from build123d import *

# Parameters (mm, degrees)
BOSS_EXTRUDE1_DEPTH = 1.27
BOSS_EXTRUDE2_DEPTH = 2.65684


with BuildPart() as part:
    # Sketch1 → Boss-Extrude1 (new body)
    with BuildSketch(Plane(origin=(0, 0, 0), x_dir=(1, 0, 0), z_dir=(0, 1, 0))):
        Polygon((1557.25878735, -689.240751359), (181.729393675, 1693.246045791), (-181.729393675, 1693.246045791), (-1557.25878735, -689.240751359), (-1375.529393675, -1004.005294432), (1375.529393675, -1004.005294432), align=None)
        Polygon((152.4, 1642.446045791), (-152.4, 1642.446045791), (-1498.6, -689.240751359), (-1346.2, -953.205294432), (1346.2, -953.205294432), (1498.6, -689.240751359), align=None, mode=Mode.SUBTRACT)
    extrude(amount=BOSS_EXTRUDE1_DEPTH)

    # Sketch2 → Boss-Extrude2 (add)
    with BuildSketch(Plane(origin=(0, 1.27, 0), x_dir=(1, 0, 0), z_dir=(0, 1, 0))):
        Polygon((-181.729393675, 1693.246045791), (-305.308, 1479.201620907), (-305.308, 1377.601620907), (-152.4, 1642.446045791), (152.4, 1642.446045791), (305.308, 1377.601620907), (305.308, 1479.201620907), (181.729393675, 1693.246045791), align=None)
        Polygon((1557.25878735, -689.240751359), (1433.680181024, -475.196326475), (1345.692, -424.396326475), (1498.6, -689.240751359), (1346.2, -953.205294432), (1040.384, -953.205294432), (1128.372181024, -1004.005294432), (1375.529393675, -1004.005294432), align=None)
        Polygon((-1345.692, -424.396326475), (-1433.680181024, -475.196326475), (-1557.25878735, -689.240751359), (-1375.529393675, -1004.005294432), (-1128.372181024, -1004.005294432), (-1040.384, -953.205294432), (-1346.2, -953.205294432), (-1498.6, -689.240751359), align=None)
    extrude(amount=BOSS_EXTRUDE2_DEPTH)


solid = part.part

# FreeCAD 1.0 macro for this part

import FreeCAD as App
import Part
import Sketcher
from FreeCAD import Vector
Q = App.Units.Quantity

doc = App.newDocument("Part")
body = doc.addObject("PartDesign::Body", "Body")

# Sketch on XZ plane
sketch1 = body.newObject("Sketcher::SketchObject", "Sketch")
sketch1.AttachmentSupport = (doc.getObject("XZ_Plane"), [""])
sketch1.MapMode = "FlatFace"
sketch1.addGeometry(Part.LineSegment(Vector(1557.258787, 689.240751, 0), Vector(181.729394, -1693.246046, 0)), False)
sketch1.addGeometry(Part.LineSegment(Vector(181.729394, -1693.246046, 0), Vector(-181.729394, -1693.246046, 0)), False)
sketch1.addGeometry(Part.LineSegment(Vector(-181.729394, -1693.246046, 0), Vector(-1557.258787, 689.240751, 0)), False)
sketch1.addGeometry(Part.LineSegment(Vector(-1557.258787, 689.240751, 0), Vector(-1375.529394, 1004.005294, 0)), False)
sketch1.addGeometry(Part.LineSegment(Vector(-1375.529394, 1004.005294, 0), Vector(1375.529394, 1004.005294, 0)), False)
sketch1.addGeometry(Part.LineSegment(Vector(1375.529394, 1004.005294, 0), Vector(1557.258787, 689.240751, 0)), False)
sketch1.addGeometry(Part.LineSegment(Vector(-152.4, -1642.446046, 0), Vector(152.4, -1642.446046, 0)), False)
sketch1.addGeometry(Part.LineSegment(Vector(152.4, -1642.446046, 0), Vector(1498.6, 689.240751, 0)), False)
sketch1.addGeometry(Part.LineSegment(Vector(1498.6, 689.240751, 0), Vector(1346.2, 953.205294, 0)), False)
sketch1.addGeometry(Part.LineSegment(Vector(1346.2, 953.205294, 0), Vector(-1346.2, 953.205294, 0)), False)
sketch1.addGeometry(Part.LineSegment(Vector(-1346.2, 953.205294, 0), Vector(-1498.6, 689.240751, 0)), False)
sketch1.addGeometry(Part.LineSegment(Vector(-1498.6, 689.240751, 0), Vector(-152.4, -1642.446046, 0)), False)
sketch1.addConstraint(Sketcher.Constraint("Coincident", 0, 2, 1, 1))
sketch1.addConstraint(Sketcher.Constraint("Coincident", 1, 2, 2, 1))
sketch1.addConstraint(Sketcher.Constraint("Coincident", 2, 2, 3, 1))
sketch1.addConstraint(Sketcher.Constraint("Coincident", 3, 2, 4, 1))
sketch1.addConstraint(Sketcher.Constraint("Coincident", 4, 2, 5, 1))
sketch1.addConstraint(Sketcher.Constraint("Coincident", 5, 2, 0, 1))
sketch1.addConstraint(Sketcher.Constraint("Coincident", 6, 2, 7, 1))
sketch1.addConstraint(Sketcher.Constraint("Coincident", 7, 2, 8, 1))
sketch1.addConstraint(Sketcher.Constraint("Coincident", 8, 2, 9, 1))
sketch1.addConstraint(Sketcher.Constraint("Coincident", 9, 2, 10, 1))
sketch1.addConstraint(Sketcher.Constraint("Coincident", 10, 2, 11, 1))
sketch1.addConstraint(Sketcher.Constraint("Coincident", 11, 2, 6, 1))
sketch1.addConstraint(Sketcher.Constraint("Horizontal", 1))
sketch1.addConstraint(Sketcher.Constraint("Horizontal", 4))
sketch1.addConstraint(Sketcher.Constraint("Horizontal", 6))
sketch1.addConstraint(Sketcher.Constraint("Horizontal", 9))
sketch1.addConstraint(Sketcher.Constraint("Symmetric", 2, 2, 5, 2, -2))
sketch1.addConstraint(Sketcher.Constraint("Symmetric", 7, 2, 10, 2, -2))
sketch1.addConstraint(Sketcher.Constraint("Parallel", 0, 3))
sketch1.addConstraint(Sketcher.Constraint("Parallel", 2, 5))
sketch1.addConstraint(Sketcher.Constraint("Parallel", 3, 7))
sketch1.addConstraint(Sketcher.Constraint("Parallel", 5, 8))
sketch1.addConstraint(Sketcher.Constraint("Parallel", 7, 10))
sketch1.addConstraint(Sketcher.Constraint("Parallel", 8, 11))
sketch1.addConstraint(Sketcher.Constraint("Horizontal", 5, 2, 7, 2))
sketch1.addConstraint(Sketcher.Constraint("Equal", 0, 2))
sketch1.addConstraint(Sketcher.Constraint("DistanceX", 6, 1, 6, 2, Q("12 in")))
sketch1.addConstraint(Sketcher.Constraint("DistanceX", 9, 2, 9, 1, Q("106 in")))
sketch1.addConstraint(Sketcher.Constraint("Distance", 7, Q("106 in")))
sketch1.addConstraint(Sketcher.Constraint("Distance", 8, Q("12 in")))
sketch1.addConstraint(Sketcher.Constraint("DistanceX", 3, 2, 1, 2, Q("47 in")))
sketch1.addConstraint(Sketcher.Constraint("DistanceY", 0, 2, 6, 2, Q("2 in")))
sketch1.addConstraint(Sketcher.Constraint("DistanceX", 1, 2, 1, 1, 363.458787))
sketch1.addConstraint(Sketcher.Constraint("DistanceY", -1, 1, 2, 2, 689.240751))
pad1 = body.newObject("PartDesign::Pad", "Pad")
pad1.Profile = sketch1
pad1.Length = Q("0.05 in")
pad1.Reversed = True

# Sketch on XZ plane
sketch2 = body.newObject("Sketcher::SketchObject", "Sketch001")
sketch2.AttachmentSupport = (doc.getObject("XZ_Plane"), [""])
sketch2.MapMode = "FlatFace"
sketch2.AttachmentOffset = App.Placement(Vector(0, 0, -0.05 * 25.4), App.Rotation())
sketch2.addGeometry(Part.LineSegment(Vector(-181.729394, -1693.246046, 0), Vector(-305.308, -1479.201621, 0)), False)
sketch2.addGeometry(Part.LineSegment(Vector(-305.308, -1479.201621, 0), Vector(-305.308, -1377.601621, 0)), False)
sketch2.addGeometry(Part.LineSegment(Vector(-305.308, -1377.601621, 0), Vector(-152.4, -1642.446046, 0)), False)
sketch2.addGeometry(Part.LineSegment(Vector(-152.4, -1642.446046, 0), Vector(152.4, -1642.446046, 0)), False)
sketch2.addGeometry(Part.LineSegment(Vector(152.4, -1642.446046, 0), Vector(305.308, -1377.601621, 0)), False)
sketch2.addGeometry(Part.LineSegment(Vector(305.308, -1377.601621, 0), Vector(305.308, -1479.201621, 0)), False)
sketch2.addGeometry(Part.LineSegment(Vector(305.308, -1479.201621, 0), Vector(181.729394, -1693.246046, 0)), False)
sketch2.addGeometry(Part.LineSegment(Vector(181.729394, -1693.246046, 0), Vector(-181.729394, -1693.246046, 0)), False)
sketch2.addGeometry(Part.LineSegment(Vector(1557.258787, 689.240751, 0), Vector(1433.680181, 475.196326, 0)), False)
sketch2.addGeometry(Part.LineSegment(Vector(1433.680181, 475.196326, 0), Vector(1345.692, 424.396326, 0)), False)
sketch2.addGeometry(Part.LineSegment(Vector(1345.692, 424.396326, 0), Vector(1498.6, 689.240751, 0)), False)
sketch2.addGeometry(Part.LineSegment(Vector(1498.6, 689.240751, 0), Vector(1346.2, 953.205294, 0)), False)
sketch2.addGeometry(Part.LineSegment(Vector(1346.2, 953.205294, 0), Vector(1040.384, 953.205294, 0)), False)
sketch2.addGeometry(Part.LineSegment(Vector(1040.384, 953.205294, 0), Vector(1128.372181, 1004.005294, 0)), False)
sketch2.addGeometry(Part.LineSegment(Vector(1128.372181, 1004.005294, 0), Vector(1375.529394, 1004.005294, 0)), False)
sketch2.addGeometry(Part.LineSegment(Vector(1375.529394, 1004.005294, 0), Vector(1557.258787, 689.240751, 0)), False)
sketch2.addGeometry(Part.LineSegment(Vector(-1345.692, 424.396326, 0), Vector(-1433.680181, 475.196326, 0)), False)
sketch2.addGeometry(Part.LineSegment(Vector(-1433.680181, 475.196326, 0), Vector(-1557.258787, 689.240751, 0)), False)
sketch2.addGeometry(Part.LineSegment(Vector(-1557.258787, 689.240751, 0), Vector(-1375.529394, 1004.005294, 0)), False)
sketch2.addGeometry(Part.LineSegment(Vector(-1375.529394, 1004.005294, 0), Vector(-1128.372181, 1004.005294, 0)), False)
sketch2.addGeometry(Part.LineSegment(Vector(-1128.372181, 1004.005294, 0), Vector(-1040.384, 953.205294, 0)), False)
sketch2.addGeometry(Part.LineSegment(Vector(-1040.384, 953.205294, 0), Vector(-1346.2, 953.205294, 0)), False)
sketch2.addGeometry(Part.LineSegment(Vector(-1346.2, 953.205294, 0), Vector(-1498.6, 689.240751, 0)), False)
sketch2.addGeometry(Part.LineSegment(Vector(-1498.6, 689.240751, 0), Vector(-1345.692, 424.396326, 0)), False)
sketch2.addConstraint(Sketcher.Constraint("Coincident", 0, 2, 1, 1))
sketch2.addConstraint(Sketcher.Constraint("Coincident", 1, 2, 2, 1))
sketch2.addConstraint(Sketcher.Constraint("Coincident", 2, 2, 3, 1))
sketch2.addConstraint(Sketcher.Constraint("Coincident", 3, 2, 4, 1))
sketch2.addConstraint(Sketcher.Constraint("Coincident", 4, 2, 5, 1))
sketch2.addConstraint(Sketcher.Constraint("Coincident", 5, 2, 6, 1))
sketch2.addConstraint(Sketcher.Constraint("Coincident", 6, 2, 7, 1))
sketch2.addConstraint(Sketcher.Constraint("Coincident", 7, 2, 0, 1))
sketch2.addConstraint(Sketcher.Constraint("Coincident", 8, 2, 9, 1))
sketch2.addConstraint(Sketcher.Constraint("Coincident", 9, 2, 10, 1))
sketch2.addConstraint(Sketcher.Constraint("Coincident", 10, 2, 11, 1))
sketch2.addConstraint(Sketcher.Constraint("Coincident", 11, 2, 12, 1))
sketch2.addConstraint(Sketcher.Constraint("Coincident", 12, 2, 13, 1))
sketch2.addConstraint(Sketcher.Constraint("Coincident", 13, 2, 14, 1))
sketch2.addConstraint(Sketcher.Constraint("Coincident", 14, 2, 15, 1))
sketch2.addConstraint(Sketcher.Constraint("Coincident", 15, 2, 8, 1))
sketch2.addConstraint(Sketcher.Constraint("Coincident", 16, 2, 17, 1))
sketch2.addConstraint(Sketcher.Constraint("Coincident", 17, 2, 18, 1))
sketch2.addConstraint(Sketcher.Constraint("Coincident", 18, 2, 19, 1))
sketch2.addConstraint(Sketcher.Constraint("Coincident", 19, 2, 20, 1))
sketch2.addConstraint(Sketcher.Constraint("Coincident", 20, 2, 21, 1))
sketch2.addConstraint(Sketcher.Constraint("Coincident", 21, 2, 22, 1))
sketch2.addConstraint(Sketcher.Constraint("Coincident", 22, 2, 23, 1))
sketch2.addConstraint(Sketcher.Constraint("Coincident", 23, 2, 16, 1))
sketch2.addConstraint(Sketcher.Constraint("Vertical", 1))
sketch2.addConstraint(Sketcher.Constraint("Horizontal", 3))
sketch2.addConstraint(Sketcher.Constraint("Vertical", 5))
sketch2.addConstraint(Sketcher.Constraint("Horizontal", 7))
sketch2.addConstraint(Sketcher.Constraint("Horizontal", 12))
sketch2.addConstraint(Sketcher.Constraint("Horizontal", 14))
sketch2.addConstraint(Sketcher.Constraint("Horizontal", 19))
sketch2.addConstraint(Sketcher.Constraint("Horizontal", 21))
sketch2.addConstraint(Sketcher.Constraint("Symmetric", 1, 2, 4, 2, -2))
sketch2.addConstraint(Sketcher.Constraint("Symmetric", 8, 2, 16, 2, -2))
sketch2.addConstraint(Sketcher.Constraint("Symmetric", 15, 2, 17, 2, -2))
sketch2.addConstraint(Sketcher.Constraint("Symmetric", 14, 2, 18, 2, -2))
sketch2.addConstraint(Sketcher.Constraint("Symmetric", 12, 2, 20, 2, -2))
sketch2.addConstraint(Sketcher.Constraint("Symmetric", 10, 2, 22, 2, -2))
sketch2.addConstraint(Sketcher.Constraint("Symmetric", 9, 2, 23, 2, -2))
sketch2.addConstraint(Sketcher.Constraint("Parallel", 0, 2))
sketch2.addConstraint(Sketcher.Constraint("Parallel", 4, 6))
sketch2.addConstraint(Sketcher.Constraint("Parallel", 6, 8))
sketch2.addConstraint(Sketcher.Constraint("Perpendicular", 2, 9))
sketch2.addConstraint(Sketcher.Constraint("Parallel", 8, 10))
sketch2.addConstraint(Sketcher.Constraint("Perpendicular", 9, 11))
sketch2.addConstraint(Sketcher.Constraint("Perpendicular", 11, 13))
sketch2.addConstraint(Sketcher.Constraint("Perpendicular", 13, 15))
sketch2.addConstraint(Sketcher.Constraint("Perpendicular", 10, 16))
sketch2.addConstraint(Sketcher.Constraint("Perpendicular", 18, 20))
sketch2.addConstraint(Sketcher.Constraint("Perpendicular", 20, 22))
sketch2.addConstraint(Sketcher.Constraint("Horizontal", 0, 2, 5, 2))
sketch2.addConstraint(Sketcher.Constraint("Horizontal", 10, 2, 15, 2))
sketch2.addConstraint(Sketcher.Constraint("Equal", 6, 8))
sketch2.addConstraint(Sketcher.Constraint("Equal", 4, 10))
sketch2.addConstraint(Sketcher.Constraint("Equal", 9, 13))
sketch2.addConstraint(Sketcher.Constraint("DistanceX", 3, 1, 3, 2, Q("12 in")))
sketch2.addConstraint(Sketcher.Constraint("DistanceY", 1, 1, 1, 2, Q("4 in")))
sketch2.addConstraint(Sketcher.Constraint("Distance", 9, Q("4 in")))
sketch2.addConstraint(Sketcher.Constraint("Distance", 11, Q("12 in")))
sketch2.addConstraint(Sketcher.Constraint("DistanceX", -1, 1, 10, 2, Q("59 in")))
sketch2.addConstraint(Sketcher.Constraint("DistanceX", -1, 1, 11, 2, Q("53 in")))
sketch2.addConstraint(Sketcher.Constraint("DistanceX", 12, 2, 12, 1, Q("12.04 in")))
sketch2.addConstraint(Sketcher.Constraint("Distance", 2, Q("12.04 in")))
sketch2.addConstraint(Sketcher.Constraint("DistanceY", 0, 2, -1, 1, 1479.201621))
sketch2.addConstraint(Sketcher.Constraint("DistanceY", -1, 1, 10, 2, 689.240751))
pad2 = body.newObject("PartDesign::Pad", "Pad001")
pad2.Profile = sketch2
pad2.Length = Q("0.1046 in")
pad2.Reversed = True

doc.recompute()
